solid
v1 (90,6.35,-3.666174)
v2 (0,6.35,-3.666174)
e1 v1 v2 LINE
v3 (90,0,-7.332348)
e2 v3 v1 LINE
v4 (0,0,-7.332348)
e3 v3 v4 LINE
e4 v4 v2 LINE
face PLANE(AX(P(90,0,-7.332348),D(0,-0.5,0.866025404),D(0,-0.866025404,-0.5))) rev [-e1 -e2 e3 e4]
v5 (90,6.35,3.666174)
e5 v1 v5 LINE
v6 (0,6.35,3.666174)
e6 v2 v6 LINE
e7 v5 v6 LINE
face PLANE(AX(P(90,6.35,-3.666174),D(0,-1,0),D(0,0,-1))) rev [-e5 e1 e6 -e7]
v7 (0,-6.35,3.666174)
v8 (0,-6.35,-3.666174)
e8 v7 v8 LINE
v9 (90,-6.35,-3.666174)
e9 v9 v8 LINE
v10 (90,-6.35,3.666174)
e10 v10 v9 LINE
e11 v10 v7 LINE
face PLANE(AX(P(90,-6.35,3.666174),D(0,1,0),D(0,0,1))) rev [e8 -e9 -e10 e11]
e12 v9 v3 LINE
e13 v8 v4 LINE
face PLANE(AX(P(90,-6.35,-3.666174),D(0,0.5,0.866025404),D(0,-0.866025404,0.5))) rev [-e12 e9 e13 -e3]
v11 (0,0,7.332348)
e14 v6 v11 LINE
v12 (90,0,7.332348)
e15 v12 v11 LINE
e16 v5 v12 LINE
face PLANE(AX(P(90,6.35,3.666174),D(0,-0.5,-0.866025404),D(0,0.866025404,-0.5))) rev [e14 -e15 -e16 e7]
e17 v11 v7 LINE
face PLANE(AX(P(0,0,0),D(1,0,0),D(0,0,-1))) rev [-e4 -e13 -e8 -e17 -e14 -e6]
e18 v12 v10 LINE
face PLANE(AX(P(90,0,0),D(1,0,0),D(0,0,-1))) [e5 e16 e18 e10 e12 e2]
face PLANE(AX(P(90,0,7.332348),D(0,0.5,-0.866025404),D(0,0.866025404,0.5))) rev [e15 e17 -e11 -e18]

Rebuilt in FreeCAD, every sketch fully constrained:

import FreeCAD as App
import Part
import Sketcher
from FreeCAD import Vector
Q = App.Units.Quantity

doc = App.newDocument("Part")
params = doc.addObject("Spreadsheet::Sheet", "Params")
for row, (alias, value) in enumerate([
    ("pad1_length", "90 mm"),
], start=1):
    params.set(f"A{row}", alias)
    params.set(f"B{row}", "=" + value)
    params.setAlias(f"B{row}", alias)

body = doc.addObject("PartDesign::Body", "Body")

# Sketch on YZ plane
sketch1 = body.newObject("Sketcher::SketchObject", "Sketch")
sketch1.AttachmentSupport = (doc.getObject("YZ_Plane"), [""])
sketch1.MapMode = "FlatFace"
sketch1.addGeometry(Part.LineSegment(Vector(0, -7, 0), Vector(6, -4, 0)), False)
sketch1.addGeometry(Part.LineSegment(Vector(6, -4, 0), Vector(6, 4, 0)), False)
sketch1.addGeometry(Part.LineSegment(Vector(6, 4, 0), Vector(0, 7, 0)), False)
sketch1.addGeometry(Part.LineSegment(Vector(0, 7, 0), Vector(-6, 4, 0)), False)
sketch1.addGeometry(Part.LineSegment(Vector(-6, 4, 0), Vector(-6, -4, 0)), False)
sketch1.addGeometry(Part.LineSegment(Vector(-6, -4, 0), Vector(0, -7, 0)), False)
sketch1.addConstraint(Sketcher.Constraint("Coincident", 0, 2, 1, 1))
sketch1.addConstraint(Sketcher.Constraint("Coincident", 1, 2, 2, 1))
sketch1.addConstraint(Sketcher.Constraint("Coincident", 2, 2, 3, 1))
sketch1.addConstraint(Sketcher.Constraint("Coincident", 3, 2, 4, 1))
sketch1.addConstraint(Sketcher.Constraint("Coincident", 4, 2, 5, 1))
sketch1.addConstraint(Sketcher.Constraint("Coincident", 5, 2, 0, 1))
sketch1.addConstraint(Sketcher.Constraint("Vertical", 1))
sketch1.addConstraint(Sketcher.Constraint("Vertical", 4))
sketch1.addConstraint(Sketcher.Constraint("Symmetric", 0, 2, 3, 2, -1, 1))
sketch1.addConstraint(Sketcher.Constraint("Symmetric", 2, 2, 5, 2, -1, 1))
sketch1.addConstraint(Sketcher.Constraint("PointOnObject", 2, 2, -2))
sketch1.addConstraint(Sketcher.Constraint("Parallel", 2, 5))
sketch1.addConstraint(Sketcher.Constraint("Horizontal", 1, 2, 3, 2))
sketch1.addConstraint(Sketcher.Constraint("Angle", 0, Q("30 deg")))
sketch1.addConstraint(Sketcher.Constraint("DistanceX", 3, 2, 1, 2, Q("12.7 mm")))
sketch1.addConstraint(Sketcher.Constraint("DistanceY", 1, 1, 1, 2, Q("7.332348 mm")))
pad1 = body.newObject("PartDesign::Pad", "Pad")
pad1.Profile = sketch1
pad1.setExpression("Length", "Params.pad1_length")

doc.recompute()
